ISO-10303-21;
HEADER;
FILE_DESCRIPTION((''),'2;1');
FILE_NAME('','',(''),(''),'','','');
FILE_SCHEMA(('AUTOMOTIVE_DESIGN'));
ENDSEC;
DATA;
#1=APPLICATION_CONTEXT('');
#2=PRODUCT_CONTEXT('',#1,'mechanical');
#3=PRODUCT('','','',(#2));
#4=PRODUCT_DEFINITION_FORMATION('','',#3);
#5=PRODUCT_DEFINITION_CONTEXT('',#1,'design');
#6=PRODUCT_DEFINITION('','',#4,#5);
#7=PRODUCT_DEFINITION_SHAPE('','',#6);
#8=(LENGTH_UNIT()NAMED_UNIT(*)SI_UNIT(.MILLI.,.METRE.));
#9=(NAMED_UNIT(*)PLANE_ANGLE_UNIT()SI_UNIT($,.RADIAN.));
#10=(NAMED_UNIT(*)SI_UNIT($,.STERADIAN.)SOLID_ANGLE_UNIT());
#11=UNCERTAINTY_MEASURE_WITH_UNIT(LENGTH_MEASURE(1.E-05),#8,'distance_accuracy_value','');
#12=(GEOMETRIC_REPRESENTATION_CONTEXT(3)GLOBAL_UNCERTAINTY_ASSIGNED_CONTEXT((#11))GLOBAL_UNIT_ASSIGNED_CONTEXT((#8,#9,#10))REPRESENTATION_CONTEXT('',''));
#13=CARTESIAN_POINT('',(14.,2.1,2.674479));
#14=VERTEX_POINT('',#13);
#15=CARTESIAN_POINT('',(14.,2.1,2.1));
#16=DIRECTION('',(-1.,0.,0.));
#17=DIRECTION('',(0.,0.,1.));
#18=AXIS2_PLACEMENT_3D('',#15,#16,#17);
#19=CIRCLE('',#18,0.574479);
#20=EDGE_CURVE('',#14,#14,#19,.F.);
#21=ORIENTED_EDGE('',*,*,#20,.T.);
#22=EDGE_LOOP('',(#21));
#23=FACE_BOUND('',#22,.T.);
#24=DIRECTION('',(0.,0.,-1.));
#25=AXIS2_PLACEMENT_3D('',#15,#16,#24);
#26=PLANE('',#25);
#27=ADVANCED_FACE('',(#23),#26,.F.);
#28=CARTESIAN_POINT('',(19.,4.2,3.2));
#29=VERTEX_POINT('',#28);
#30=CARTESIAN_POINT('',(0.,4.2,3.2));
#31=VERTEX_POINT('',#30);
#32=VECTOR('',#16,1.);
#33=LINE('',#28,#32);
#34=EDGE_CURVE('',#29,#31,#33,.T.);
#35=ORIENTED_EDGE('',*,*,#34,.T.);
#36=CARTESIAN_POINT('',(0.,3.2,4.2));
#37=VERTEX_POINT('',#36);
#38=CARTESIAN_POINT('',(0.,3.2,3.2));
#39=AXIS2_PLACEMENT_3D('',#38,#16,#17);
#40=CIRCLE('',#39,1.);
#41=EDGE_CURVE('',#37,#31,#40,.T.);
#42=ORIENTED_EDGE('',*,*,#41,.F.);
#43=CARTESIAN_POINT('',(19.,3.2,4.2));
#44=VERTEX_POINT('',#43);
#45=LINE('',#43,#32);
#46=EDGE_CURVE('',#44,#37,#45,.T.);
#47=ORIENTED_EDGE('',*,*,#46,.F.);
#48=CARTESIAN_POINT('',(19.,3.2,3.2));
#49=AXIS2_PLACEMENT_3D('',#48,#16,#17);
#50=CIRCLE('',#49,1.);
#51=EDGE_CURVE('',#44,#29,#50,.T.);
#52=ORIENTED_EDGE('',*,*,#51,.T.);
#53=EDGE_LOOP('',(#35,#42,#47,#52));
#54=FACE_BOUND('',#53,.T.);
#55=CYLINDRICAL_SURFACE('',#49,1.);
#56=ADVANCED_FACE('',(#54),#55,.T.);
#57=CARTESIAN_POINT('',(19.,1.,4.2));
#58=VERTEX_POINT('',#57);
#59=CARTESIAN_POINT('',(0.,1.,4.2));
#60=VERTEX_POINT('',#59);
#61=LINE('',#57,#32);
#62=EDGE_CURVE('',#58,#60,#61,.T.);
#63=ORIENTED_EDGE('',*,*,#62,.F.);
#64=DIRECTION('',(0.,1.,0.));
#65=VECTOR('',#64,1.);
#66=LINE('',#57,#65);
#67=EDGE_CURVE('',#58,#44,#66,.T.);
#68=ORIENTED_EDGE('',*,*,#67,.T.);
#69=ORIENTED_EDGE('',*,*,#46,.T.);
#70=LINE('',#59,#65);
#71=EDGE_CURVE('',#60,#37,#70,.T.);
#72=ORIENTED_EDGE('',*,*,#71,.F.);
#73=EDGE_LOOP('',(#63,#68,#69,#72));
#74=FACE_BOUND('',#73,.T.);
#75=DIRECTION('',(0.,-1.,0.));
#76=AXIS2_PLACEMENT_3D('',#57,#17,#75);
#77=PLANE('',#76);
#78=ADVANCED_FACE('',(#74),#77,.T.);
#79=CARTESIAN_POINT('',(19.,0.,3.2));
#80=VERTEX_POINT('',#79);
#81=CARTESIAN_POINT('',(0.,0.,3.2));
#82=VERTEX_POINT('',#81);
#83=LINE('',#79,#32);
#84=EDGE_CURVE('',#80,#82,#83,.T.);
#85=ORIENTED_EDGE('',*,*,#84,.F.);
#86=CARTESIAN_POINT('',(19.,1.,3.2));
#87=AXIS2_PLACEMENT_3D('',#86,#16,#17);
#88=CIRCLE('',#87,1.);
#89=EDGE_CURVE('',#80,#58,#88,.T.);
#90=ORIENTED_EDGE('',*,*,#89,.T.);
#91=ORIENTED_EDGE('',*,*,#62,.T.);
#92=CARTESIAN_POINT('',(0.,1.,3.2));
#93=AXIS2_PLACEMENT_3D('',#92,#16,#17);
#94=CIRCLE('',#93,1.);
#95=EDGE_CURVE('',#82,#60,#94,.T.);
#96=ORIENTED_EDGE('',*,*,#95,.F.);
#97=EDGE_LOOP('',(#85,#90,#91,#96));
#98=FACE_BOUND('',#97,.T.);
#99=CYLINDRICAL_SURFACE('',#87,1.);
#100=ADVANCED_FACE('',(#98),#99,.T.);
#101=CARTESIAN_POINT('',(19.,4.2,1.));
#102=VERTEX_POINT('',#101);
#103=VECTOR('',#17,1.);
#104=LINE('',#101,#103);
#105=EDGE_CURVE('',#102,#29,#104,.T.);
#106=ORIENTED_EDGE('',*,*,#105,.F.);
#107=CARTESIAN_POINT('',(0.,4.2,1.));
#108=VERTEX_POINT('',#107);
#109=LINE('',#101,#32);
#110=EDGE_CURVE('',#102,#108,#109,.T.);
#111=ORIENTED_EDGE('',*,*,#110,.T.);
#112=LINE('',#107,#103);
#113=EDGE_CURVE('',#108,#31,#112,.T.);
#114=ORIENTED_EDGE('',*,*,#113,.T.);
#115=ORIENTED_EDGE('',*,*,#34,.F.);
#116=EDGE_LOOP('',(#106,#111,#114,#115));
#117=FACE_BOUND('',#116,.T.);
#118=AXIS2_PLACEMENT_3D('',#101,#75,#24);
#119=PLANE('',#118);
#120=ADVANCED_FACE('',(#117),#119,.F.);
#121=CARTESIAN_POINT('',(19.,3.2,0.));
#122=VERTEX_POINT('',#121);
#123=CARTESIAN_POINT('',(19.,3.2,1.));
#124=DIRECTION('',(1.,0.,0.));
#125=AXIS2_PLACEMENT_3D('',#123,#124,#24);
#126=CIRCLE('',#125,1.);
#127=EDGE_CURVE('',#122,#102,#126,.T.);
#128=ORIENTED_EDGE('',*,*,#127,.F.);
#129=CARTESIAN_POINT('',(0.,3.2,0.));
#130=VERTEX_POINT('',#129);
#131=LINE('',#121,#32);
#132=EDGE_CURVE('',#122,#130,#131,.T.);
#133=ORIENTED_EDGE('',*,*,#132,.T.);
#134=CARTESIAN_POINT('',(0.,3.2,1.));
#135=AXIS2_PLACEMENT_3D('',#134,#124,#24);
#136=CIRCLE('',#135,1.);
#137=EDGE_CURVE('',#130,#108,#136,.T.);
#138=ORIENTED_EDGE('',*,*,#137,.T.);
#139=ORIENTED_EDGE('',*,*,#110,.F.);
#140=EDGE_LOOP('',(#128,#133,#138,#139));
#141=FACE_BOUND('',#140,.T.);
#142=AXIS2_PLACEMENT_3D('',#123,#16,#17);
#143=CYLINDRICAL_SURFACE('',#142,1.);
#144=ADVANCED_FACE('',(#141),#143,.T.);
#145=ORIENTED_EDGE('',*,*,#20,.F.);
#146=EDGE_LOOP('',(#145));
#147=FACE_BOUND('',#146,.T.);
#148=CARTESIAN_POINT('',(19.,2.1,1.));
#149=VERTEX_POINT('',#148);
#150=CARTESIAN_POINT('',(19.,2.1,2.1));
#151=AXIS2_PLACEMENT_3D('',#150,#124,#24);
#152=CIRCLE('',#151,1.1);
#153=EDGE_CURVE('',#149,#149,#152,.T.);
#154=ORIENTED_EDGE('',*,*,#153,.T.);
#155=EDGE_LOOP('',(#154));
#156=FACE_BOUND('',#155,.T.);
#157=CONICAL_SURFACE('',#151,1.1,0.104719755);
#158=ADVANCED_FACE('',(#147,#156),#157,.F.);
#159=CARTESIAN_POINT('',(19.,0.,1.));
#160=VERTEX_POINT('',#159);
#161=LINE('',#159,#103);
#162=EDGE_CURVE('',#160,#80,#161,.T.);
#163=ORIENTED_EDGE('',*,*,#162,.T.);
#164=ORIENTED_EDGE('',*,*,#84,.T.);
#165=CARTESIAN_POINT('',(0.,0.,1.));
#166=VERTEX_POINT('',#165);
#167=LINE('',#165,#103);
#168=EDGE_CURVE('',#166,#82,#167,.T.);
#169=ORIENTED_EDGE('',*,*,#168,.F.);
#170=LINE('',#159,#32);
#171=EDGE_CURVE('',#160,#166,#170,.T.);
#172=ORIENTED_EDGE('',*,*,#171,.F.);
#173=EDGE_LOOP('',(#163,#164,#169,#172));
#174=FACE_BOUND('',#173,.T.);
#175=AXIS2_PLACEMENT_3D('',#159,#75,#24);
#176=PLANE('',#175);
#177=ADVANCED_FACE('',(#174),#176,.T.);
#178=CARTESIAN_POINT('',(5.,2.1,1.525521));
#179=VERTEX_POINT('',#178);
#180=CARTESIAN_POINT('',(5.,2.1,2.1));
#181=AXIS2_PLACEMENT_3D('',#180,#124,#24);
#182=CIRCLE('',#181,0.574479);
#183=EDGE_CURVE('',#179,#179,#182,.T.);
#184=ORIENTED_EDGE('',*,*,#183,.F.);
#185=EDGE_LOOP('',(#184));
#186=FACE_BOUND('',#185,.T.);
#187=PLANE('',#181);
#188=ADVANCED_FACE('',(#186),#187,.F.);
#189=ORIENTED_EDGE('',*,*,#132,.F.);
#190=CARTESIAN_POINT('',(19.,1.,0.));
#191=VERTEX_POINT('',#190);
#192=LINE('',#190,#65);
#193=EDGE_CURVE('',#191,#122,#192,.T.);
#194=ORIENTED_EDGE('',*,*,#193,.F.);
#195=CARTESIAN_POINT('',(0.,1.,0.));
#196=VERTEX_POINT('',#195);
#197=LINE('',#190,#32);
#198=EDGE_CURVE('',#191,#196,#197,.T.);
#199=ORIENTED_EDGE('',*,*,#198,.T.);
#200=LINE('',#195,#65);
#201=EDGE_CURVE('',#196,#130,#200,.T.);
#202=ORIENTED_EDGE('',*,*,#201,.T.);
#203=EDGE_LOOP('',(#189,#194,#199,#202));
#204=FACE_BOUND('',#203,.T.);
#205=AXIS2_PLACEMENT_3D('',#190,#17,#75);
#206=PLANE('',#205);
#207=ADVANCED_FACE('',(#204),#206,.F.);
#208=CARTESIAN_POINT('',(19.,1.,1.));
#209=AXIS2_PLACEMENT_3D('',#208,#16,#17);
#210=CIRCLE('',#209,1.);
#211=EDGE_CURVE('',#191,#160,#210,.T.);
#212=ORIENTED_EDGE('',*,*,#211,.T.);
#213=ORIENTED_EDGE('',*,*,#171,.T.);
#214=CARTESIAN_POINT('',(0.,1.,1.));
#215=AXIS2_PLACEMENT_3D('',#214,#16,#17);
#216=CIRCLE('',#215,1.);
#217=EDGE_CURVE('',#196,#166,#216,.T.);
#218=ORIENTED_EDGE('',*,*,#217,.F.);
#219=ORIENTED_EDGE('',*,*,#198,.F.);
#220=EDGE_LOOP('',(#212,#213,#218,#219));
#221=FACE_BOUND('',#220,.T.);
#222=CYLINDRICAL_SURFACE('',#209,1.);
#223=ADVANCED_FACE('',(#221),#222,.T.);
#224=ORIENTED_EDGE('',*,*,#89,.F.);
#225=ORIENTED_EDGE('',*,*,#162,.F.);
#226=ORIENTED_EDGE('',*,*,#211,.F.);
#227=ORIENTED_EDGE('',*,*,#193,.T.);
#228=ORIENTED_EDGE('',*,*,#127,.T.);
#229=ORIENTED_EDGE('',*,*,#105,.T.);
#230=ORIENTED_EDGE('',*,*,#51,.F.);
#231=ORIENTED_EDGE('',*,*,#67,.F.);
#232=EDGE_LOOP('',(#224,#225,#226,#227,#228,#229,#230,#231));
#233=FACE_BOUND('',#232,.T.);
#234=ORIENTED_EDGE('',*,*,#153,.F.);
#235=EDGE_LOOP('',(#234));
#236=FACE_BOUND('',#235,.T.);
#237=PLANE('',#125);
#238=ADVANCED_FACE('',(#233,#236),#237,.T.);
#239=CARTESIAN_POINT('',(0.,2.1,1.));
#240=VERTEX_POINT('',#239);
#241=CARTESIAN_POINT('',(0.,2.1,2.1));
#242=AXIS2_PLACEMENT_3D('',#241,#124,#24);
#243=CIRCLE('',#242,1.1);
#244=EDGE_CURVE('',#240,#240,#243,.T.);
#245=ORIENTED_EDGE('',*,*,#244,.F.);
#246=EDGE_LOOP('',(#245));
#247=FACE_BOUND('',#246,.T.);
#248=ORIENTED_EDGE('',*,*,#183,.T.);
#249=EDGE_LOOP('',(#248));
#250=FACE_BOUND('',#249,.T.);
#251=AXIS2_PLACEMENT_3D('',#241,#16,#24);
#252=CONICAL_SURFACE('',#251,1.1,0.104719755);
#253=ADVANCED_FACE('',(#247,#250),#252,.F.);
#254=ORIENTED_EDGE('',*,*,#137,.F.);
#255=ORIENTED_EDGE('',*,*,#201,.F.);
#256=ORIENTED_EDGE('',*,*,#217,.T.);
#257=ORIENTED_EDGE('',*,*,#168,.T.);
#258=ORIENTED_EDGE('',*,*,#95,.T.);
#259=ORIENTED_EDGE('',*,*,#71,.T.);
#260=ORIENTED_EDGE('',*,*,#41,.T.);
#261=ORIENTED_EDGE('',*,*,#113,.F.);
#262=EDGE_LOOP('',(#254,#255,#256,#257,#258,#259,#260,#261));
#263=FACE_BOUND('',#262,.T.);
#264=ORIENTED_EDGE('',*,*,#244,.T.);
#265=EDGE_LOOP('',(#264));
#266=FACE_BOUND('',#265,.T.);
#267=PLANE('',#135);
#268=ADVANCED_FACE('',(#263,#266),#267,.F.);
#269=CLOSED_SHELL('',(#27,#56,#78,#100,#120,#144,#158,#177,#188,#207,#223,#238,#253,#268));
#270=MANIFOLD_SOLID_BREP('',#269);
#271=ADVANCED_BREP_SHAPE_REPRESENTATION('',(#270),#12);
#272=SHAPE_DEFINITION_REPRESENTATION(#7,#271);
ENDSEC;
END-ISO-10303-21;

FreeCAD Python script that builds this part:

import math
import FreeCAD as App
import Part
import Sketcher

V = App.Vector

doc = App.newDocument("Part")
body = doc.addObject("PartDesign::Body", "Body")

# Sketch on YZ plane
sketch1 = body.newObject("Sketcher::SketchObject", "Sketch")
sketch1.AttachmentSupport = (doc.getObject("YZ_Plane"), [""])
sketch1.MapMode = "FlatFace"
sketch1.addGeometry(Part.LineSegment(V(1, 0, 0), V(3.2, 0, 0)), False)
sketch1.addGeometry(Part.ArcOfCircle(Part.Circle(V(3.2, 1, 0), V(0, 0, 1), 1), math.radians(-90), math.radians(0)), False)
sketch1.addGeometry(Part.LineSegment(V(4.2, 1, 0), V(4.2, 3.2, 0)), False)
sketch1.addGeometry(Part.ArcOfCircle(Part.Circle(V(3.2, 3.2, 0), V(0, 0, 1), 1), math.radians(0), math.radians(90)), False)
sketch1.addGeometry(Part.LineSegment(V(3.2, 4.2, 0), V(1, 4.2, 0)), False)
sketch1.addGeometry(Part.ArcOfCircle(Part.Circle(V(1, 3.2, 0), V(0, 0, 1), 1), math.radians(90), math.radians(180)), False)
sketch1.addGeometry(Part.LineSegment(V(0, 3.2, 0), V(0, 1, 0)), False)
sketch1.addGeometry(Part.ArcOfCircle(Part.Circle(V(1, 1, 0), V(0, 0, 1), 1), math.radians(-180), math.radians(-90)), False)
sketch1.addConstraint(Sketcher.Constraint("Tangent", 0, 2, 1, 1))
sketch1.addConstraint(Sketcher.Constraint("Tangent", 1, 2, 2, 1))
sketch1.addConstraint(Sketcher.Constraint("Tangent", 2, 2, 3, 1))
sketch1.addConstraint(Sketcher.Constraint("Tangent", 3, 2, 4, 1))
sketch1.addConstraint(Sketcher.Constraint("Tangent", 4, 2, 5, 1))
sketch1.addConstraint(Sketcher.Constraint("Tangent", 5, 2, 6, 1))
sketch1.addConstraint(Sketcher.Constraint("Tangent", 6, 2, 7, 1))
sketch1.addConstraint(Sketcher.Constraint("Tangent", 7, 2, 0, 1))
sketch1.addConstraint(Sketcher.Constraint("Horizontal", 0))
sketch1.addConstraint(Sketcher.Constraint("Vertical", 2))
sketch1.addConstraint(Sketcher.Constraint("Horizontal", 4))
sketch1.addConstraint(Sketcher.Constraint("Vertical", 6))
sketch1.addConstraint(Sketcher.Constraint("Equal", 1, 3))
sketch1.addConstraint(Sketcher.Constraint("Equal", 3, 5))
sketch1.addConstraint(Sketcher.Constraint("Equal", 5, 7))
sketch1.addConstraint(Sketcher.Constraint("PointOnObject", 0, 2, -1))
sketch1.addConstraint(Sketcher.Constraint("PointOnObject", 5, 2, -2))
sketch1.addConstraint(Sketcher.Constraint("Equal", 4, 2))
sketch1.addConstraint(Sketcher.Constraint("Radius", 1, 1.0))
sketch1.addConstraint(Sketcher.Constraint("DistanceX", 0, 1, 0, 2, 2.2))
pad1 = body.newObject("PartDesign::Pad", "Pad")
pad1.Profile = sketch1
pad1.Length = 19

# Sketch on YZ plane
sketch2 = body.newObject("Sketcher::SketchObject", "Sketch001")
sketch2.AttachmentSupport = (doc.getObject("YZ_Plane"), [""])
sketch2.MapMode = "FlatFace"
sketch2.addGeometry(Part.Circle(V(2.1, 2.1, 0), V(0, 0, 1), 1.1), False)
sketch2.addConstraint(Sketcher.Constraint("Diameter", 0, 2.2))
sketch2.addConstraint(Sketcher.Constraint("DistanceX", -1, 1, 0, 3, 2.1))
sketch2.addConstraint(Sketcher.Constraint("DistanceY", -1, 1, 0, 3, 2.1))
pocket1 = body.newObject("PartDesign::Pocket", "Pocket")
pocket1.Profile = sketch2
pocket1.Length = 5
pocket1.Reversed = True
pocket1.TaperAngle = -6
doc.recompute()

datumplane = body.newObject("PartDesign::Plane", "DatumPlane")
datumplane.AttachmentSupport = (doc.getObject("YZ_Plane"), [""])
datumplane.MapMode = "FlatFace"
datumplane.AttachmentOffset = App.Placement(V(0, 0, 9.5), App.Rotation())
mirrored = body.newObject("PartDesign::Mirrored", "Mirrored")
mirrored.Originals = [pocket1]
mirrored.MirrorPlane = (datumplane, [""])
body.Tip = mirrored

doc.recompute()
